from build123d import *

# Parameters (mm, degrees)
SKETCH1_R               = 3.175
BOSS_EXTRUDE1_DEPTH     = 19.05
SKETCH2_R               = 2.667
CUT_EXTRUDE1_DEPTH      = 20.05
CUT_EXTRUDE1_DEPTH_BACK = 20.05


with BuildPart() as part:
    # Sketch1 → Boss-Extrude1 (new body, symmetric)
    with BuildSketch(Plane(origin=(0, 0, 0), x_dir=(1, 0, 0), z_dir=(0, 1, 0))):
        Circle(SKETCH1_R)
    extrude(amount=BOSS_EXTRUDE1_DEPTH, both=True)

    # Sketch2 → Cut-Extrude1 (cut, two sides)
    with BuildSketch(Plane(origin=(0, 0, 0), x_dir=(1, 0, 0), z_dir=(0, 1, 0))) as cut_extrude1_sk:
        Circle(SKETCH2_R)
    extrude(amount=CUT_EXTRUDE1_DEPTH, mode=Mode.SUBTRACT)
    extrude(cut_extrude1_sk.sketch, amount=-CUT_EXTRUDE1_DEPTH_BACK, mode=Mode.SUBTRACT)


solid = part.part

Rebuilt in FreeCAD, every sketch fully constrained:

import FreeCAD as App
import Part
import Sketcher
Q = App.Units.Quantity

doc = App.newDocument("Part")
body = doc.addObject("PartDesign::Body", "Body")

# Sketch on XZ plane
sketch1 = body.newObject("Sketcher::SketchObject", "Sketch")
sketch1.AttachmentSupport = (doc.getObject("XZ_Plane"), [""])
sketch1.MapMode = "FlatFace"
sketch1.addGeometry(Part.Circle(App.Vector(0, 0, 0), App.Vector(0, 0, 1), 3.175), False)
sketch1.addConstraint(Sketcher.Constraint("Coincident", 0, 3, -1, 1))
sketch1.addConstraint(Sketcher.Constraint("Diameter", 0, Q("0.25 in")))
pad1 = body.newObject("PartDesign::Pad", "Pad")
pad1.Profile = sketch1
pad1.Length = Q("1.5 in")
pad1.Midplane = True

# Sketch on XZ plane
sketch2 = body.newObject("Sketcher::SketchObject", "Sketch001")
sketch2.AttachmentSupport = (doc.getObject("XZ_Plane"), [""])
sketch2.MapMode = "FlatFace"
sketch2.addGeometry(Part.Circle(App.Vector(0, 0, 0), App.Vector(0, 0, 1), 2.667), False)
sketch2.addConstraint(Sketcher.Constraint("Coincident", 0, 3, -1, 1))
sketch2.addConstraint(Sketcher.Constraint("Diameter", 0, Q("0.21 in")))
pocket1 = body.newObject("PartDesign::Pocket", "Pocket")
pocket1.Profile = sketch2
pocket1.Type = "ThroughAll"
pocket1.Midplane = True

doc.recompute()
